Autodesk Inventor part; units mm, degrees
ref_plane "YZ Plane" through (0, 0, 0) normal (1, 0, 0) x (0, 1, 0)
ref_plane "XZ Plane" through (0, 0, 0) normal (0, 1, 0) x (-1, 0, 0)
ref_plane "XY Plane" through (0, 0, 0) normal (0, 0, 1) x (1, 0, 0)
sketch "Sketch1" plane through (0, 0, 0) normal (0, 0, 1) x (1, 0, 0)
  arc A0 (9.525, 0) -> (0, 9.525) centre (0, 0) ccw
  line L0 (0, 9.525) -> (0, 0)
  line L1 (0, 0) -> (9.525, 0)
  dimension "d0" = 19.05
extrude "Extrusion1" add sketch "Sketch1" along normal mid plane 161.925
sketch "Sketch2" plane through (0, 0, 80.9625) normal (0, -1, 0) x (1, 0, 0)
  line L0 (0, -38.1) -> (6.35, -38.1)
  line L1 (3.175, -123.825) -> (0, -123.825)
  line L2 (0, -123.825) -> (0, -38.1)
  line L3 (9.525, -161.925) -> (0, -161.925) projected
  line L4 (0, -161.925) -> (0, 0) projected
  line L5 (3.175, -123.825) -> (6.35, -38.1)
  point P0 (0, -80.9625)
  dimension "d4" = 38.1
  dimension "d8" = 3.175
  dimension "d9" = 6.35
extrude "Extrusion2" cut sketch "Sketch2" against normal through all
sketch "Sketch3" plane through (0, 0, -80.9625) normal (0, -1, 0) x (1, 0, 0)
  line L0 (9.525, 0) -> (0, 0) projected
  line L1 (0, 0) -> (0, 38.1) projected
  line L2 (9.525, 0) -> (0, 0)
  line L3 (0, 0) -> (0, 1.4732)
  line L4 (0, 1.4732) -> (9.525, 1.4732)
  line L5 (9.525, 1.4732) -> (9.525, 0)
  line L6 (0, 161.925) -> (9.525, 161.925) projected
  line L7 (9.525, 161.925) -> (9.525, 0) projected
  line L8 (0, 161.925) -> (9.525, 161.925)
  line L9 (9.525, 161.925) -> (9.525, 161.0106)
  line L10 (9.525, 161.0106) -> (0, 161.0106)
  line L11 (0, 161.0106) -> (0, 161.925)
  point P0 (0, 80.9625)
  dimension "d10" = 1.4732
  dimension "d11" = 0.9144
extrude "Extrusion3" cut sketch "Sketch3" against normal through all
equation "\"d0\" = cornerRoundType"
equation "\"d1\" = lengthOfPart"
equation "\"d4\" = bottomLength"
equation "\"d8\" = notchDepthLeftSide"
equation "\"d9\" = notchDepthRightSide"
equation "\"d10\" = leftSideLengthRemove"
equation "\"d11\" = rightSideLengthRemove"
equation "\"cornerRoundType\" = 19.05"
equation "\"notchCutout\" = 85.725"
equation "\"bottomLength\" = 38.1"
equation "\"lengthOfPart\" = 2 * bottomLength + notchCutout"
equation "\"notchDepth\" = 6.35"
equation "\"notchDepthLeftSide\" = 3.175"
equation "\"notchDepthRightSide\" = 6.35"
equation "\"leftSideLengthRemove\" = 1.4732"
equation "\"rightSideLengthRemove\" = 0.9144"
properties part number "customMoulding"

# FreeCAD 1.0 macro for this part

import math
import FreeCAD as App
import Part
import Sketcher

V = App.Vector
Q = App.Units.Quantity


def add_polygon(sketch, points):
    """Adds a closed chain of lines whose ends are joined by coincident constraints."""
    first, n = sketch.GeometryCount, len(points)
    for a, b in zip(points, points[1:] + points[:1]):
        sketch.addGeometry(Part.LineSegment(App.Vector(*a, 0), App.Vector(*b, 0)), False)
    for i in range(n):
        sketch.addConstraint(Sketcher.Constraint("Coincident", first + i, 2, first + (i + 1) % n, 1))

doc = App.newDocument("Part")
body = doc.addObject("PartDesign::Body", "Body")

# Sketch on XY plane
sketch1 = body.newObject("Sketcher::SketchObject", "Sketch")
sketch1.AttachmentSupport = (doc.getObject("XY_Plane"), [""])
sketch1.MapMode = "FlatFace"
sketch1.addGeometry([
    Part.LineSegment(V(0, 0, 0), V(9.525, 0, 0)),
    Part.ArcOfCircle(Part.Circle(V(0, 0, 0), V(0, 0, 1), 9.525), math.radians(0), math.radians(90)),
    Part.LineSegment(V(0, 9.525, 0), V(0, 0, 0)),
], False)
sketch1.addConstraint([
    Sketcher.Constraint("Coincident", 0, 2, 1, 1),
    Sketcher.Constraint("Coincident", 1, 2, 2, 1),
    Sketcher.Constraint("Coincident", 2, 2, 0, 1),
    Sketcher.Constraint("Horizontal", 0),
    Sketcher.Constraint("Vertical", 2),
    Sketcher.Constraint("Coincident", 1, 3, -1, 1),
    Sketcher.Constraint("Coincident", 2, 2, -1, 1),
    Sketcher.Constraint("Radius", 1, Q("0.375 in")),
])
pad1 = body.newObject("PartDesign::Pad", "Pad")
pad1.Profile = sketch1
pad1.Length = Q("6.375 in")
pad1.Midplane = True

# Sketch on XZ plane
sketch2 = body.newObject("Sketcher::SketchObject", "Sketch001")
sketch2.AttachmentSupport = (doc.getObject("XZ_Plane"), [""])
sketch2.MapMode = "FlatFace"
add_polygon(sketch2, [(6.35, 42.8625), (0, 42.8625), (0, -42.8625), (3.175, -42.8625)])  # lines 0-3
sketch2.addConstraint([
    Sketcher.Constraint("Horizontal", 0),
    Sketcher.Constraint("Vertical", 1),
    Sketcher.Constraint("Horizontal", 2),
    Sketcher.Constraint("Symmetric", 0, 2, 1, 2, -1, 1),
    Sketcher.Constraint("DistanceX", 0, 2, 0, 1, Q("0.25 in")),
    Sketcher.Constraint("DistanceX", 2, 1, 2, 2, Q("0.125 in")),
    Sketcher.Constraint("DistanceY", 1, 2, 1, 1, Q("3.375 in")),
])
pocket1 = body.newObject("PartDesign::Pocket", "Pocket")
pocket1.Profile = sketch2
pocket1.Type = "ThroughAll"

# Sketch on XZ plane
sketch3 = body.newObject("Sketcher::SketchObject", "Sketch002")
sketch3.AttachmentSupport = (doc.getObject("XZ_Plane"), [""])
sketch3.MapMode = "FlatFace"
add_polygon(sketch3, [(0, 80.0481), (9.525, 80.0481), (9.525, 80.9625), (0, 80.9625)])  # lines 0-3
add_polygon(sketch3, [(0, -80.9625), (9.525, -80.9625), (9.525, -79.4893), (0, -79.4893)])  # lines 4-7
sketch3.addConstraint([
    Sketcher.Constraint("Horizontal", 0),
    Sketcher.Constraint("Vertical", 1),
    Sketcher.Constraint("Horizontal", 2),
    Sketcher.Constraint("Vertical", 3),
    Sketcher.Constraint("Horizontal", 4),
    Sketcher.Constraint("Vertical", 5),
    Sketcher.Constraint("Horizontal", 6),
    Sketcher.Constraint("Vertical", 7),
    Sketcher.Constraint("Symmetric", 2, 2, 7, 2, -1, 1),
    Sketcher.Constraint("PointOnObject", 2, 2, -2),
    Sketcher.Constraint("Vertical", 1, 2, 4, 2),
    Sketcher.Constraint("DistanceY", 1, 1, 1, 2, Q("0.036 in")),
    Sketcher.Constraint("DistanceY", 5, 1, 5, 2, Q("0.058 in")),
    Sketcher.Constraint("DistanceX", 0, 1, 0, 2, Q("0.375 in")),
    Sketcher.Constraint("DistanceY", -1, 1, 1, 2, Q("3.1875 in")),
])
pocket2 = body.newObject("PartDesign::Pocket", "Pocket001")
pocket2.Profile = sketch3
pocket2.Type = "ThroughAll"

doc.recompute()
